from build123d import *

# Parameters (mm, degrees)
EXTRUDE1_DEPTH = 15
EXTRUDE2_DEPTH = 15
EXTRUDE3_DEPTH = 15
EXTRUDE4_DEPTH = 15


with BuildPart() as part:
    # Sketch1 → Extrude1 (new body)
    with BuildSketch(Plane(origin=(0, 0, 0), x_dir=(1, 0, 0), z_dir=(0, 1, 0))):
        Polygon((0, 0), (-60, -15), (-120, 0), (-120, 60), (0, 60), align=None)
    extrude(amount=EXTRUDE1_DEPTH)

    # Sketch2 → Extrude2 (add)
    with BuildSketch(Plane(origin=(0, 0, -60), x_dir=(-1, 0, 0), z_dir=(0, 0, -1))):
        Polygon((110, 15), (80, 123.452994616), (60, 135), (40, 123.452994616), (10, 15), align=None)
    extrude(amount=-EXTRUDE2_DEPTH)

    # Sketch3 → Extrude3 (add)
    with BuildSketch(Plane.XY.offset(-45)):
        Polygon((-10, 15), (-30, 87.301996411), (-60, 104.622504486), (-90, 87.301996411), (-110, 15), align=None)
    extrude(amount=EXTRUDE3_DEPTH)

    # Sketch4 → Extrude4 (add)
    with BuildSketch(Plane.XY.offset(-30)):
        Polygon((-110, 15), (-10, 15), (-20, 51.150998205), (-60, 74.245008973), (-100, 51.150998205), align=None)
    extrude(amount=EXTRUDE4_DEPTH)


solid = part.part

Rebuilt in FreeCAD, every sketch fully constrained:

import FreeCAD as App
import Part
import Sketcher
Q = App.Units.Quantity

doc = App.newDocument("Part")
params = doc.addObject("Spreadsheet::Sheet", "Params")
for row, (alias, value) in enumerate([
    ("sketch1_width", "120 mm"),
    ("sketch1_height", "60 mm"),
    ("pad1_length", "15 mm"),
    ("sketch2_width", "100 mm"),
    ("pad2_length", "15 mm"),
    ("sketch3_width", "100 mm"),
    ("pad3_length", "15 mm"),
    ("sketch4_width", "100 mm"),
    ("pad4_length", "15 mm"),
], start=1):
    params.set(f"A{row}", alias)
    params.set(f"B{row}", "=" + value)
    params.setAlias(f"B{row}", alias)

body = doc.addObject("PartDesign::Body", "Body")

sketch1 = body.newObject("Sketcher::SketchObject", "Sketch")
sketch1.AttachmentSupport = (doc.getObject("XZ_Plane"), [""])
sketch1.MapMode = "FlatFace"
sketch1.addGeometry(Part.LineSegment(App.Vector(-60, 15, 0), App.Vector(0, 0, 0)), False)
sketch1.addGeometry(Part.LineSegment(App.Vector(0, 0, 0), App.Vector(0, -60, 0)), False)
sketch1.addGeometry(Part.LineSegment(App.Vector(0, -60, 0), App.Vector(-120, -60, 0)), False)
sketch1.addGeometry(Part.LineSegment(App.Vector(-120, -60, 0), App.Vector(-120, 0, 0)), False)
sketch1.addGeometry(Part.LineSegment(App.Vector(-120, 0, 0), App.Vector(-60, 15, 0)), False)
sketch1.addConstraint(Sketcher.Constraint("Coincident", 0, 2, 1, 1))
sketch1.addConstraint(Sketcher.Constraint("Coincident", 1, 2, 2, 1))
sketch1.addConstraint(Sketcher.Constraint("Coincident", 2, 2, 3, 1))
sketch1.addConstraint(Sketcher.Constraint("Coincident", 3, 2, 4, 1))
sketch1.addConstraint(Sketcher.Constraint("Coincident", 4, 2, 0, 1))
sketch1.addConstraint(Sketcher.Constraint("Vertical", 1))
sketch1.addConstraint(Sketcher.Constraint("Horizontal", 2))
sketch1.addConstraint(Sketcher.Constraint("Vertical", 3))
sketch1.addConstraint(Sketcher.Constraint("Coincident", 0, 2, -1, 1))
sketch1.addConstraint(Sketcher.Constraint("PointOnObject", 3, 2, -1))
sketch1.addConstraint(Sketcher.Constraint("Equal", 0, 4))
sketch1.addConstraint(Sketcher.Constraint("DistanceX", 2, 2, 2, 1, Q("120 mm")))
sketch1.addConstraint(Sketcher.Constraint("DistanceY", 1, 2, 1, 1, Q("60 mm")))
sketch1.addConstraint(Sketcher.Constraint("DistanceY", -1, 1, 4, 2, Q("15 mm")))
sketch1.setExpression("Constraints[11]", "Params.sketch1_width")
sketch1.setExpression("Constraints[12]", "Params.sketch1_height")
pad1 = body.newObject("PartDesign::Pad", "Pad")
pad1.Profile = sketch1
pad1.setExpression("Length", "Params.pad1_length")
pad1.Reversed = True

sketch2 = body.newObject("Sketcher::SketchObject", "Sketch001")
sketch2.AttachmentSupport = (doc.getObject("XY_Plane"), [""])
sketch2.MapMode = "FlatFace"
sketch2.AttachmentOffset = App.Placement(App.Vector(0, 0, -60), App.Rotation())
sketch2.addGeometry(Part.LineSegment(App.Vector(-110, 15, 0), App.Vector(-80, 123, 0)), False)
sketch2.addGeometry(Part.LineSegment(App.Vector(-80, 123, 0), App.Vector(-60, 135, 0)), False)
sketch2.addGeometry(Part.LineSegment(App.Vector(-60, 135, 0), App.Vector(-40, 123, 0)), False)
sketch2.addGeometry(Part.LineSegment(App.Vector(-40, 123, 0), App.Vector(-10, 15, 0)), False)
sketch2.addGeometry(Part.LineSegment(App.Vector(-10, 15, 0), App.Vector(-110, 15, 0)), False)
sketch2.addConstraint(Sketcher.Constraint("Coincident", 0, 2, 1, 1))
sketch2.addConstraint(Sketcher.Constraint("Coincident", 1, 2, 2, 1))
sketch2.addConstraint(Sketcher.Constraint("Coincident", 2, 2, 3, 1))
sketch2.addConstraint(Sketcher.Constraint("Coincident", 3, 2, 4, 1))
sketch2.addConstraint(Sketcher.Constraint("Coincident", 4, 2, 0, 1))
sketch2.addConstraint(Sketcher.Constraint("Horizontal", 4))
sketch2.addConstraint(Sketcher.Constraint("Horizontal", 0, 2, 2, 2))
sketch2.addConstraint(Sketcher.Constraint("Equal", 1, 2))
sketch2.addConstraint(Sketcher.Constraint("Equal", 0, 3))
sketch2.addConstraint(Sketcher.Constraint("DistanceX", 4, 2, 4, 1, Q("100 mm")))
sketch2.addConstraint(Sketcher.Constraint("Angle", 1, Q("30 deg")))
sketch2.addConstraint(Sketcher.Constraint("DistanceX", 0, 2, -1, 1, Q("80 mm")))
sketch2.addConstraint(Sketcher.Constraint("DistanceX", 1, 2, -1, 1, Q("60 mm")))
sketch2.addConstraint(Sketcher.Constraint("DistanceY", -1, 1, 1, 2, Q("135 mm")))
sketch2.addConstraint(Sketcher.Constraint("DistanceY", -1, 1, 3, 2, Q("15 mm")))
sketch2.setExpression("Constraints[9]", "Params.sketch2_width")
pad2 = body.newObject("PartDesign::Pad", "Pad001")
pad2.Profile = sketch2
pad2.setExpression("Length", "Params.pad2_length")

sketch3 = body.newObject("Sketcher::SketchObject", "Sketch002")
sketch3.AttachmentSupport = (doc.getObject("XY_Plane"), [""])
sketch3.MapMode = "FlatFace"
sketch3.AttachmentOffset = App.Placement(App.Vector(0, 0, -45), App.Rotation())
sketch3.addGeometry(Part.LineSegment(App.Vector(-10, 15, 0), App.Vector(-30, 87, 0)), False)
sketch3.addGeometry(Part.LineSegment(App.Vector(-30, 87, 0), App.Vector(-60, 105, 0)), False)
sketch3.addGeometry(Part.LineSegment(App.Vector(-60, 105, 0), App.Vector(-90, 87, 0)), False)
sketch3.addGeometry(Part.LineSegment(App.Vector(-90, 87, 0), App.Vector(-110, 15, 0)), False)
sketch3.addGeometry(Part.LineSegment(App.Vector(-110, 15, 0), App.Vector(-10, 15, 0)), False)
sketch3.addConstraint(Sketcher.Constraint("Coincident", 0, 2, 1, 1))
sketch3.addConstraint(Sketcher.Constraint("Coincident", 1, 2, 2, 1))
sketch3.addConstraint(Sketcher.Constraint("Coincident", 2, 2, 3, 1))
sketch3.addConstraint(Sketcher.Constraint("Coincident", 3, 2, 4, 1))
sketch3.addConstraint(Sketcher.Constraint("Coincident", 4, 2, 0, 1))
sketch3.addConstraint(Sketcher.Constraint("Horizontal", 4))
sketch3.addConstraint(Sketcher.Constraint("Horizontal", 0, 2, 2, 2))
sketch3.addConstraint(Sketcher.Constraint("Equal", 1, 2))
sketch3.addConstraint(Sketcher.Constraint("Equal", 0, 3))
sketch3.addConstraint(Sketcher.Constraint("DistanceX", 4, 1, 4, 2, Q("100 mm")))
sketch3.addConstraint(Sketcher.Constraint("Angle", 1, Q("150 deg")))
sketch3.addConstraint(Sketcher.Constraint("DistanceX", 0, 2, -1, 1, Q("30 mm")))
sketch3.addConstraint(Sketcher.Constraint("DistanceX", 1, 2, -1, 1, Q("60 mm")))
sketch3.addConstraint(Sketcher.Constraint("DistanceY", -1, 1, 3, 2, Q("15 mm")))
sketch3.addConstraint(Sketcher.Constraint("Distance", 0, Q("75.017189 mm")))
sketch3.setExpression("Constraints[9]", "Params.sketch3_width")
pad3 = body.newObject("PartDesign::Pad", "Pad002")
pad3.Profile = sketch3
pad3.setExpression("Length", "Params.pad3_length")

sketch4 = body.newObject("Sketcher::SketchObject", "Sketch003")
sketch4.AttachmentSupport = (doc.getObject("XY_Plane"), [""])
sketch4.MapMode = "FlatFace"
sketch4.AttachmentOffset = App.Placement(App.Vector(0, 0, -30), App.Rotation())
sketch4.addGeometry(Part.LineSegment(App.Vector(-110, 15, 0), App.Vector(-10, 15, 0)), False)
sketch4.addGeometry(Part.LineSegment(App.Vector(-10, 15, 0), App.Vector(-20, 51, 0)), False)
sketch4.addGeometry(Part.LineSegment(App.Vector(-20, 51, 0), App.Vector(-60, 74, 0)), False)
sketch4.addGeometry(Part.LineSegment(App.Vector(-60, 74, 0), App.Vector(-100, 51, 0)), False)
sketch4.addGeometry(Part.LineSegment(App.Vector(-100, 51, 0), App.Vector(-110, 15, 0)), False)
sketch4.addConstraint(Sketcher.Constraint("Coincident", 0, 2, 1, 1))
sketch4.addConstraint(Sketcher.Constraint("Coincident", 1, 2, 2, 1))
sketch4.addConstraint(Sketcher.Constraint("Coincident", 2, 2, 3, 1))
sketch4.addConstraint(Sketcher.Constraint("Coincident", 3, 2, 4, 1))
sketch4.addConstraint(Sketcher.Constraint("Coincident", 4, 2, 0, 1))
sketch4.addConstraint(Sketcher.Constraint("Horizontal", 0))
sketch4.addConstraint(Sketcher.Constraint("Horizontal", 1, 2, 3, 2))
sketch4.addConstraint(Sketcher.Constraint("Equal", 2, 3))
sketch4.addConstraint(Sketcher.Constraint("Equal", 1, 4))
sketch4.addConstraint(Sketcher.Constraint("DistanceX", 0, 1, 0, 2, Q("100 mm")))
sketch4.addConstraint(Sketcher.Constraint("Angle", 2, Q("150 deg")))
sketch4.addConstraint(Sketcher.Constraint("DistanceX", 0, 2, -1, 1, Q("10 mm")))
sketch4.addConstraint(Sketcher.Constraint("DistanceY", -1, 1, 0, 2, Q("15 mm")))
sketch4.addConstraint(Sketcher.Constraint("DistanceX", 1, 2, -1, 1, Q("20 mm")))
sketch4.addConstraint(Sketcher.Constraint("DistanceY", -1, 1, 1, 2, Q("51.150998 mm")))
sketch4.setExpression("Constraints[9]", "Params.sketch4_width")
pad4 = body.newObject("PartDesign::Pad", "Pad003")
pad4.Profile = sketch4
pad4.setExpression("Length", "Params.pad4_length")

doc.recompute()
